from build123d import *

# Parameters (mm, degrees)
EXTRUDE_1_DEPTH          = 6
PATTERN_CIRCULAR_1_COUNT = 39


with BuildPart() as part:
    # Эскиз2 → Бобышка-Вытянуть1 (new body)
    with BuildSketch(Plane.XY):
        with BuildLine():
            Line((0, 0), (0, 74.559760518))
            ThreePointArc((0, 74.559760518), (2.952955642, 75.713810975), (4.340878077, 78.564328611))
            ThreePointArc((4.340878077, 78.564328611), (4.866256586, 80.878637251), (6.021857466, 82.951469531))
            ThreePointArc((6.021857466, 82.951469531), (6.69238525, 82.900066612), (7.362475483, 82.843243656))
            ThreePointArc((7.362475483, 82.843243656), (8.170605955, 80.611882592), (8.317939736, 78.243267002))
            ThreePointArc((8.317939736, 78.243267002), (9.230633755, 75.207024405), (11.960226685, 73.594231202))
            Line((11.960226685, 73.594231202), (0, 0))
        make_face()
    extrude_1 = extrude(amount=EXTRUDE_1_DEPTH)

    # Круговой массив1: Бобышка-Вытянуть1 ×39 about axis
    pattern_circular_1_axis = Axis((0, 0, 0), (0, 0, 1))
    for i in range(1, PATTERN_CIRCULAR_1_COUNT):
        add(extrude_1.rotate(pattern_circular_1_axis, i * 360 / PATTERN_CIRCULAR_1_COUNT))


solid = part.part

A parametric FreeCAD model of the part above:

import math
import FreeCAD as App
import Part
import Sketcher

V = App.Vector
Q = App.Units.Quantity

doc = App.newDocument("Part")
params = doc.addObject("Spreadsheet::Sheet", "Params")
for row, (alias, value) in enumerate([
    ("pad1_length", "6 mm"),
], start=1):
    params.set(f"A{row}", alias)
    params.set(f"B{row}", "=" + value)
    params.setAlias(f"B{row}", alias)

body = doc.addObject("PartDesign::Body", "Body")

# Sketch on XY plane
sketch1 = body.newObject("Sketcher::SketchObject", "Sketch")
sketch1.AttachmentSupport = (doc.getObject("XY_Plane"), [""])
sketch1.MapMode = "FlatFace"
sketch1.addGeometry(Part.LineSegment(V(0, 74.6, 0), V(0, 0, 0)), False)
sketch1.addGeometry(Part.LineSegment(V(0, 0, 0), V(12, 73.6, 0)), False)
sketch1.addGeometry(Part.ArcOfCircle(Part.Circle(V(12.7, 77.9, 0), V(0, 0, 1), 4.4), math.radians(175), math.radians(261)), False)
sketch1.addGeometry(Part.ArcOfCircle(Part.Circle(V(0, 78.9, 0), V(0, 0, 1), 8.3), math.radians(-5), math.radians(28)), False)
sketch1.addGeometry(Part.ArcOfCircle(Part.Circle(V(0, 0, 0), V(0, 0, 1), 83.2), math.radians(84.92), math.radians(85.85)), False)
sketch1.addGeometry(Part.ArcOfCircle(Part.Circle(V(12.7, 77.9, 0), V(0, 0, 1), 8.3), math.radians(143), math.radians(175)), False)
sketch1.addGeometry(Part.ArcOfCircle(Part.Circle(V(0, 78.9, 0), V(0, 0, 1), 4.4), math.radians(-90), math.radians(-5)), False)
sketch1.addConstraint(Sketcher.Constraint("Coincident", 0, 2, 1, 1))
sketch1.addConstraint(Sketcher.Constraint("Coincident", 1, 2, 2, 2))
sketch1.addConstraint(Sketcher.Constraint("Tangent", 2, 1, 3, 1))
sketch1.addConstraint(Sketcher.Constraint("Coincident", 3, 2, 4, 1))
sketch1.addConstraint(Sketcher.Constraint("Coincident", 4, 2, 5, 1))
sketch1.addConstraint(Sketcher.Constraint("Tangent", 5, 2, 6, 2))
sketch1.addConstraint(Sketcher.Constraint("Coincident", 6, 1, 0, 1))
sketch1.addConstraint(Sketcher.Constraint("Vertical", 0))
sketch1.addConstraint(Sketcher.Constraint("Coincident", 0, 2, -1, 1))
sketch1.addConstraint(Sketcher.Constraint("Coincident", 5, 3, 2, 3))
sketch1.addConstraint(Sketcher.Constraint("Coincident", 6, 3, 3, 3))
sketch1.addConstraint(Sketcher.Constraint("Equal", 3, 5))
sketch1.addConstraint(Sketcher.Constraint("PointOnObject", 3, 3, -2))
sketch1.addConstraint(Sketcher.Constraint("PointOnObject", 4, 3, -2))
sketch1.addConstraint(Sketcher.Constraint("Radius", 2, Q("4.355 mm")))
sketch1.addConstraint(Sketcher.Constraint("Radius", 3, Q("8.345 mm")))
sketch1.addConstraint(Sketcher.Constraint("Radius", 4, Q("83.169775 mm")))
sketch1.addConstraint(Sketcher.Constraint("DistanceY", 0, 2, 0, 1, Q("74.559761 mm")))
sketch1.addConstraint(Sketcher.Constraint("Distance", 1, Q("74.559761 mm")))
sketch1.addConstraint(Sketcher.Constraint("DistanceY", -1, 1, 1, 2, Q("73.594231 mm")))
sketch1.addConstraint(Sketcher.Constraint("DistanceY", -1, 1, 4, 2, Q("82.95147 mm")))
pad1 = body.newObject("PartDesign::Pad", "Pad")
pad1.Profile = sketch1
pad1.setExpression("Length", "Params.pad1_length")
doc.recompute()

polarpattern = body.newObject("PartDesign::PolarPattern", "PolarPattern")
polarpattern.Originals = [pad1]
polarpattern.Axis = (doc.getObject("Z_Axis"), [""])
polarpattern.Angle = 360
polarpattern.Occurrences = 39
body.Tip = polarpattern

doc.recompute()
